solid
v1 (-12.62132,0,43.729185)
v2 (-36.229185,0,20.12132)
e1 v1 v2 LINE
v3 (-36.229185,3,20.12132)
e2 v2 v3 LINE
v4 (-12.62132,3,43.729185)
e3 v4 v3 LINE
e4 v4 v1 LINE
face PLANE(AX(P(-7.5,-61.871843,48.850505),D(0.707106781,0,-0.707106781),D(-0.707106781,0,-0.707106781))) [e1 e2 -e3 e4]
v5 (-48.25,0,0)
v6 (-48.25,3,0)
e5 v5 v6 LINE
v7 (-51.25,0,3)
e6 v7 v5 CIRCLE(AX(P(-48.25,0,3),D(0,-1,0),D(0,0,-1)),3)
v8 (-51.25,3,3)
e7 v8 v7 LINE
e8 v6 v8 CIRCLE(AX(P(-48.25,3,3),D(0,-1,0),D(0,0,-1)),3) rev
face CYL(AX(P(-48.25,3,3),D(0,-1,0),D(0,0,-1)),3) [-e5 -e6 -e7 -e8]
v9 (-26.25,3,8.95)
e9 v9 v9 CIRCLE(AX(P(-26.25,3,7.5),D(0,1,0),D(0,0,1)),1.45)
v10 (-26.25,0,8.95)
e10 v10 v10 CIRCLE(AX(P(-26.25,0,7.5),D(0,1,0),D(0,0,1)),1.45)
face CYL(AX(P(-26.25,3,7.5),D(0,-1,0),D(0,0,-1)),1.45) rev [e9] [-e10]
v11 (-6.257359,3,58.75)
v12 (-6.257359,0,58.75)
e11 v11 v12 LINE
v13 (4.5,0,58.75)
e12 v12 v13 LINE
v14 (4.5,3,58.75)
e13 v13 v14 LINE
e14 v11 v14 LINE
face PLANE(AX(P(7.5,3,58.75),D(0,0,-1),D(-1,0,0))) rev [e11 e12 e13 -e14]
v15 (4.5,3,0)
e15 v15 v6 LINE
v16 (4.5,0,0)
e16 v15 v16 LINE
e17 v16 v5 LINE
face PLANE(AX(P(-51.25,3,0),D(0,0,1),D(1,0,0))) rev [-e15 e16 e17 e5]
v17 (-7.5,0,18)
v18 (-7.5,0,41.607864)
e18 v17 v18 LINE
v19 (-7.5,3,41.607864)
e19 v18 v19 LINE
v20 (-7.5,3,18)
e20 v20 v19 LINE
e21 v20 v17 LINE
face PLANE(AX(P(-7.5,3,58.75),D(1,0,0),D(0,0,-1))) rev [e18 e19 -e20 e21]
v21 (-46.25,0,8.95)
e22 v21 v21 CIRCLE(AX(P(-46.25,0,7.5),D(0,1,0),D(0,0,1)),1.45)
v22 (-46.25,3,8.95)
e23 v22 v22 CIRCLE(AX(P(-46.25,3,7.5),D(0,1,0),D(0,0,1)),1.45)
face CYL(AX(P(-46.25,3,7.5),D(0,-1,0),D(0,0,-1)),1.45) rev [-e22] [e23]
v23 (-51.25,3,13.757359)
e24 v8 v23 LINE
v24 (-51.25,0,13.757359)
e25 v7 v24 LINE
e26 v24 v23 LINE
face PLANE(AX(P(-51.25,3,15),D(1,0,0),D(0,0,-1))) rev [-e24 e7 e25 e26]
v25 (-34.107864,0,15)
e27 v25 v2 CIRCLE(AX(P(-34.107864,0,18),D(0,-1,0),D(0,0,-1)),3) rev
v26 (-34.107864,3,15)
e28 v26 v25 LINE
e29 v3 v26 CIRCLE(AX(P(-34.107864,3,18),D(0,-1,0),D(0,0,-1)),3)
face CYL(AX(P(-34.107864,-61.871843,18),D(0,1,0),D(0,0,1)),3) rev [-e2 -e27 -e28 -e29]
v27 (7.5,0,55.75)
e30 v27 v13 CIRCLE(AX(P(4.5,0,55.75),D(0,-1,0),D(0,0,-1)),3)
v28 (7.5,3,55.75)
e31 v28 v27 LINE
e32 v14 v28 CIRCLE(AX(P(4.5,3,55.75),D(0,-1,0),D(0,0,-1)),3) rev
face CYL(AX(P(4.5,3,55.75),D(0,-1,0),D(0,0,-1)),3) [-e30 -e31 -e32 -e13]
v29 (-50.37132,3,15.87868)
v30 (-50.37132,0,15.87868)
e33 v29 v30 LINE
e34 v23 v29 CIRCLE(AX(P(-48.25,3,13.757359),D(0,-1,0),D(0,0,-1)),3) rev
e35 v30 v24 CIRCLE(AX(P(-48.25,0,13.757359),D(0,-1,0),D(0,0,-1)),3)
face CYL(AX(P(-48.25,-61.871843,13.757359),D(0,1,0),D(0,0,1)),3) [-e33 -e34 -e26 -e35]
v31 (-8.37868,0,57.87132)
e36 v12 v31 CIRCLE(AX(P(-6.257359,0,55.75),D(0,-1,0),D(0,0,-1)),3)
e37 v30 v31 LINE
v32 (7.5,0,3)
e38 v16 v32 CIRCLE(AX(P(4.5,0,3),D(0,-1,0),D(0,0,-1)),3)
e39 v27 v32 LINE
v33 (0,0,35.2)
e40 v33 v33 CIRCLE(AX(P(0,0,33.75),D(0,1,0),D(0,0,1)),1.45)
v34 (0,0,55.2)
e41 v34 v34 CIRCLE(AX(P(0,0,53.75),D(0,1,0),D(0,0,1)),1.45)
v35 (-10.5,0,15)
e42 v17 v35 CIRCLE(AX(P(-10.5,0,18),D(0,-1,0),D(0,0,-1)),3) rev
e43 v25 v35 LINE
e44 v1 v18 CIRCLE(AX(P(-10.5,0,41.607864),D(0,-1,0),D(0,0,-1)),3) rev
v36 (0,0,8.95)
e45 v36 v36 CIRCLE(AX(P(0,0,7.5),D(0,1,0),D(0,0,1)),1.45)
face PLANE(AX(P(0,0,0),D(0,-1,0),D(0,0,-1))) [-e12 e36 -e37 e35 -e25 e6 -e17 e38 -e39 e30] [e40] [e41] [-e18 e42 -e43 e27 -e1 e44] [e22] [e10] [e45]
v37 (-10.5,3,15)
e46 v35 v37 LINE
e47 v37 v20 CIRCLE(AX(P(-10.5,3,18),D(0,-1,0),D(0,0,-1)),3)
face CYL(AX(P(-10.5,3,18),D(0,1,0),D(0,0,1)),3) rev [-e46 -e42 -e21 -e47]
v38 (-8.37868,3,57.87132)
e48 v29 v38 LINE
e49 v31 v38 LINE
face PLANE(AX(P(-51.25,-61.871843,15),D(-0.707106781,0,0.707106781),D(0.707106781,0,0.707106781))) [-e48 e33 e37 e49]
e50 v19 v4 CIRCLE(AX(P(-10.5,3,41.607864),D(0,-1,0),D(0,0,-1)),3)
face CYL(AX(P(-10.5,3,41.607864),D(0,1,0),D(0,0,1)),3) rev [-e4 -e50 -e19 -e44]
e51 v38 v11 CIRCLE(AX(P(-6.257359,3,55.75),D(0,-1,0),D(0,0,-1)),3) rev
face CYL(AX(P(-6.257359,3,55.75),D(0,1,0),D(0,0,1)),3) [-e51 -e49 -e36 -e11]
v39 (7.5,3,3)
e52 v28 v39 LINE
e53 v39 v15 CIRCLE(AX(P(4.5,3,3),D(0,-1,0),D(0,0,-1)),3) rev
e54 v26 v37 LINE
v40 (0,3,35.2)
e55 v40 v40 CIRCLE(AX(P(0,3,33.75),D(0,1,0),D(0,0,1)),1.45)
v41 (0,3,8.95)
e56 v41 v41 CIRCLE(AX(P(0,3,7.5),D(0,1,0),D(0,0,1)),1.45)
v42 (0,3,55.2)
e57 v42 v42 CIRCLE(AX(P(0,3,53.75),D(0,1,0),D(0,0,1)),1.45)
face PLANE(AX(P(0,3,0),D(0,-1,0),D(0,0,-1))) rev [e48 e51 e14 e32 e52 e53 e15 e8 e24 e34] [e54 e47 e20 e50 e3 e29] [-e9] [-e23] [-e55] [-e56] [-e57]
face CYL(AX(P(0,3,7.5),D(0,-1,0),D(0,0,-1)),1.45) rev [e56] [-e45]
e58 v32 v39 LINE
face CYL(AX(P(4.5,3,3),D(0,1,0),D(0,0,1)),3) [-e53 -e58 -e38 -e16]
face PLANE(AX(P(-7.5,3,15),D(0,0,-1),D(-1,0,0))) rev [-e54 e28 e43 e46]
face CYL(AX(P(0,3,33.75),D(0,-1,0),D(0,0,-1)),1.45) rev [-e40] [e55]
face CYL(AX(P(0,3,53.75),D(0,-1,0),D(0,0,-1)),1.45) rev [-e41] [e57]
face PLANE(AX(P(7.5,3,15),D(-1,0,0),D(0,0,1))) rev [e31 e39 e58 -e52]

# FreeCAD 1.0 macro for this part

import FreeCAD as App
import Part
import Sketcher

V = App.Vector
Q = App.Units.Quantity


def edges_at(feature, points):
    """Names of the edges that pass closest to the given points."""
    edges = feature.Shape.Edges
    near = lambda p: min(range(len(edges)), key=lambda i: edges[i].distToShape(Part.Vertex(*p))[0])
    return sorted({f"Edge{near(p) + 1}" for p in points})

doc = App.newDocument("Part")
body = doc.addObject("PartDesign::Body", "Body")

sketch1 = doc.addObject("Sketcher::SketchObject", "Sketch")
body.addObject(sketch1)
sketch1.AttachmentSupport = (doc.XZ_Plane, [""])
sketch1.MapMode = "FlatFace"
sketch1.addGeometry(Part.LineSegment(V(51.25, 0, 0), V(-51.25, 0, 0)), False)
sketch1.addGeometry(Part.LineSegment(V(-51.25, 0, 0), V(-51.25, 15, 0)), False)
sketch1.addGeometry(Part.LineSegment(V(-51.25, 15, 0), V(-7.5, 15, 0)), False)
sketch1.addGeometry(Part.LineSegment(V(-7.5, 15, 0), V(-7.5, 58.75, 0)), False)
sketch1.addGeometry(Part.LineSegment(V(-7.5, 58.75, 0), V(7.5, 58.75, 0)), False)
sketch1.addGeometry(Part.LineSegment(V(7.5, 58.75, 0), V(7.5, 15, 0)), False)
sketch1.addGeometry(Part.LineSegment(V(7.5, 15, 0), V(51.25, 15, 0)), False)
sketch1.addGeometry(Part.LineSegment(V(51.25, 15, 0), V(51.25, 0, 0)), False)
sketch1.addGeometry(Part.Circle(V(0, 53.75, 0), V(0, 0, 1), 1.45), False)
sketch1.addGeometry(Part.Circle(V(0, 33.75, 0), V(0, 0, 1), 1.45), False)
sketch1.addGeometry(Part.Circle(V(46.25, 7.5, 0), V(0, 0, 1), 1.45), False)
sketch1.addGeometry(Part.Circle(V(26.25, 7.5, 0), V(0, 0, 1), 1.45), False)
sketch1.addGeometry(Part.Circle(V(0, 7.5, 0), V(0, 0, 1), 1.45), False)
sketch1.addGeometry(Part.Circle(V(-26.25, 7.5, 0), V(0, 0, 1), 1.45), False)
sketch1.addGeometry(Part.Circle(V(-46.25, 7.5, 0), V(0, 0, 1), 1.45), False)
sketch1.addConstraint(Sketcher.Constraint("Coincident", 0, 2, 1, 1))
sketch1.addConstraint(Sketcher.Constraint("Coincident", 1, 2, 2, 1))
sketch1.addConstraint(Sketcher.Constraint("Coincident", 2, 2, 3, 1))
sketch1.addConstraint(Sketcher.Constraint("Coincident", 3, 2, 4, 1))
sketch1.addConstraint(Sketcher.Constraint("Coincident", 4, 2, 5, 1))
sketch1.addConstraint(Sketcher.Constraint("Coincident", 5, 2, 6, 1))
sketch1.addConstraint(Sketcher.Constraint("Coincident", 6, 2, 7, 1))
sketch1.addConstraint(Sketcher.Constraint("Coincident", 7, 2, 0, 1))
sketch1.addConstraint(Sketcher.Constraint("Horizontal", 0))
sketch1.addConstraint(Sketcher.Constraint("Vertical", 1))
sketch1.addConstraint(Sketcher.Constraint("Horizontal", 2))
sketch1.addConstraint(Sketcher.Constraint("Vertical", 3))
sketch1.addConstraint(Sketcher.Constraint("Horizontal", 4))
sketch1.addConstraint(Sketcher.Constraint("Vertical", 5))
sketch1.addConstraint(Sketcher.Constraint("Horizontal", 6))
sketch1.addConstraint(Sketcher.Constraint("Vertical", 7))
sketch1.addConstraint(Sketcher.Constraint("Equal", 8, 9))
sketch1.addConstraint(Sketcher.Constraint("Equal", 9, 10))
sketch1.addConstraint(Sketcher.Constraint("Equal", 10, 11))
sketch1.addConstraint(Sketcher.Constraint("Equal", 11, 12))
sketch1.addConstraint(Sketcher.Constraint("Equal", 12, 13))
sketch1.addConstraint(Sketcher.Constraint("Equal", 13, 14))
sketch1.addConstraint(Sketcher.Constraint("Symmetric", 0, 2, 7, 2, -1, 1))
sketch1.addConstraint(Sketcher.Constraint("Symmetric", 11, 3, 13, 3, -2))
sketch1.addConstraint(Sketcher.Constraint("Symmetric", 10, 3, 14, 3, -2))
sketch1.addConstraint(Sketcher.Constraint("Symmetric", 2, 2, 5, 2, -2))
sketch1.addConstraint(Sketcher.Constraint("PointOnObject", 8, 3, -2))
sketch1.addConstraint(Sketcher.Constraint("PointOnObject", 9, 3, -2))
sketch1.addConstraint(Sketcher.Constraint("PointOnObject", 12, 3, -2))
sketch1.addConstraint(Sketcher.Constraint("Horizontal", 10, 3, 11, 3))
sketch1.addConstraint(Sketcher.Constraint("Horizontal", 11, 3, 12, 3))
sketch1.addConstraint(Sketcher.Constraint("Equal", 4, 1))
sketch1.addConstraint(Sketcher.Constraint("Equal", 6, 3))
sketch1.addConstraint(Sketcher.Constraint("Diameter", 8, Q("2.9 mm")))
sketch1.addConstraint(Sketcher.Constraint("DistanceX", 4, 1, 4, 2, Q("15 mm")))
sketch1.addConstraint(Sketcher.Constraint("DistanceX", 0, 2, 0, 1, Q("102.5 mm")))
sketch1.addConstraint(Sketcher.Constraint("DistanceY", 9, 3, 8, 3, Q("20 mm")))
sketch1.addConstraint(Sketcher.Constraint("DistanceX", 11, 3, 10, 3, Q("20 mm")))
sketch1.addConstraint(Sketcher.Constraint("DistanceX", 0, 2, 14, 3, Q("5 mm")))
sketch1.addConstraint(Sketcher.Constraint("DistanceY", 8, 3, 3, 2, Q("5 mm")))
sketch1.addConstraint(Sketcher.Constraint("DistanceY", -1, 1, 10, 3, Q("7.5 mm")))
pad1 = doc.addObject("PartDesign::Pad", "Pad")
body.addObject(pad1)
pad1.Profile = sketch1
pad1.Length = 3
pad1.Reversed = True

sketch2 = doc.addObject("Sketcher::SketchObject", "Sketch001")
body.addObject(sketch2)
sketch2.AttachmentSupport = (doc.XZ_Plane, [""])
sketch2.MapMode = "FlatFace"
sketch2.AttachmentOffset = App.Placement(V(0, 0, -3), App.Rotation())
sketch2.addGeometry(Part.LineSegment(V(-51.25, 15, 0), V(-7.5, 58.75, 0)), False)
sketch2.addGeometry(Part.LineSegment(V(-7.5, 58.75, 0), V(-7.5, 48.850505, 0)), False)
sketch2.addGeometry(Part.LineSegment(V(-7.5, 48.850505, 0), V(-41.350505, 15, 0)), False)
sketch2.addGeometry(Part.LineSegment(V(-41.350505, 15, 0), V(-51.25, 15, 0)), False)
sketch2.addGeometry(Part.LineSegment(V(51.25, 15, 0), V(41.350505, 15, 0)), False)
sketch2.addGeometry(Part.LineSegment(V(41.350505, 15, 0), V(7.5, 48.850505, 0)), False)
sketch2.addGeometry(Part.LineSegment(V(7.5, 48.850505, 0), V(7.5, 58.75, 0)), False)
sketch2.addGeometry(Part.LineSegment(V(7.5, 58.75, 0), V(51.25, 15, 0)), False)
sketch2.addConstraint(Sketcher.Constraint("Coincident", 0, 2, 1, 1))
sketch2.addConstraint(Sketcher.Constraint("Coincident", 1, 2, 2, 1))
sketch2.addConstraint(Sketcher.Constraint("Coincident", 2, 2, 3, 1))
sketch2.addConstraint(Sketcher.Constraint("Coincident", 3, 2, 0, 1))
sketch2.addConstraint(Sketcher.Constraint("Coincident", 4, 2, 5, 1))
sketch2.addConstraint(Sketcher.Constraint("Coincident", 5, 2, 6, 1))
sketch2.addConstraint(Sketcher.Constraint("Coincident", 6, 2, 7, 1))
sketch2.addConstraint(Sketcher.Constraint("Coincident", 7, 2, 4, 1))
sketch2.addConstraint(Sketcher.Constraint("Vertical", 1))
sketch2.addConstraint(Sketcher.Constraint("Horizontal", 3))
sketch2.addConstraint(Sketcher.Constraint("Horizontal", 4))
sketch2.addConstraint(Sketcher.Constraint("Vertical", 6))
sketch2.addConstraint(Sketcher.Constraint("Symmetric", 2, 2, 4, 2, -2))
sketch2.addConstraint(Sketcher.Constraint("Symmetric", 1, 2, 5, 2, -2))
sketch2.addConstraint(Sketcher.Constraint("Parallel", 0, 2))
sketch2.addConstraint(Sketcher.Constraint("Perpendicular", 2, 5))
sketch2.addConstraint(Sketcher.Constraint("Parallel", 5, 7))
sketch2.addConstraint(Sketcher.Constraint("Horizontal", 0, 2, 6, 2))
sketch2.addConstraint(Sketcher.Constraint("DistanceY", -1, 1, 2, 2, Q("15 mm")))
sketch2.addConstraint(Sketcher.Constraint("DistanceX", 1, 2, 5, 2, Q("15 mm")))
sketch2.addConstraint(Sketcher.Constraint("DistanceY", -1, 1, 0, 2, Q("58.75 mm")))
sketch2.addConstraint(Sketcher.Constraint("DistanceX", 3, 2, 3, 1, Q("9.899495 mm")))
pad2 = doc.addObject("PartDesign::Pad", "Pad001")
body.addObject(pad2)
pad2.Profile = sketch2
pad2.Length = 3

sketch3 = doc.addObject("Sketcher::SketchObject", "Sketch002")
body.addObject(sketch3)
sketch3.AttachmentSupport = (doc.XZ_Plane, [""])
sketch3.MapMode = "FlatFace"
sketch3.AttachmentOffset = App.Placement(V(0, 0, -3), App.Rotation())
sketch3.addGeometry(Part.LineSegment(V(7.5, 0, 0), V(7.5, 58.75, 0)), False)
sketch3.addGeometry(Part.LineSegment(V(7.5, 58.75, 0), V(51.25, 58.75, 0)), False)
sketch3.addGeometry(Part.LineSegment(V(51.25, 58.75, 0), V(51.25, 0, 0)), False)
sketch3.addGeometry(Part.LineSegment(V(51.25, 0, 0), V(7.5, 0, 0)), False)
sketch3.addConstraint(Sketcher.Constraint("Coincident", 0, 2, 1, 1))
sketch3.addConstraint(Sketcher.Constraint("Coincident", 1, 2, 2, 1))
sketch3.addConstraint(Sketcher.Constraint("Coincident", 2, 2, 3, 1))
sketch3.addConstraint(Sketcher.Constraint("Coincident", 3, 2, 0, 1))
sketch3.addConstraint(Sketcher.Constraint("Vertical", 0))
sketch3.addConstraint(Sketcher.Constraint("Horizontal", 1))
sketch3.addConstraint(Sketcher.Constraint("Vertical", 2))
sketch3.addConstraint(Sketcher.Constraint("Horizontal", 3))
sketch3.addConstraint(Sketcher.Constraint("PointOnObject", 2, 2, -1))
sketch3.addConstraint(Sketcher.Constraint("DistanceX", 1, 1, 1, 2, Q("43.75 mm")))
sketch3.addConstraint(Sketcher.Constraint("DistanceY", 0, 1, 0, 2, Q("58.75 mm")))
sketch3.addConstraint(Sketcher.Constraint("DistanceX", -1, 1, 0, 2, Q("7.5 mm")))
pocket1 = doc.addObject("PartDesign::Pocket", "Pocket")
body.addObject(pocket1)
pocket1.Profile = sketch3
pocket1.Type = "ThroughAll"
pocket1.Reversed = True
doc.recompute()

fillet = doc.addObject("PartDesign::Fillet", "Fillet")
body.addObject(fillet)
fillet.Base = (pocket1, edges_at(pocket1, [
    (-51.25, 1.5, 0),
    (7.5, 1.5, 58.75),
    (-7.5, 1.5, 58.75),
    (-7.5, 1.5, 15),
    (-51.25, 1.5, 15),
    (-7.5, 1.5, 48.851),
    (-41.351, 1.5, 15),
    (7.5, 1.5, 0),
]))
fillet.Radius = 3

doc.recompute()
